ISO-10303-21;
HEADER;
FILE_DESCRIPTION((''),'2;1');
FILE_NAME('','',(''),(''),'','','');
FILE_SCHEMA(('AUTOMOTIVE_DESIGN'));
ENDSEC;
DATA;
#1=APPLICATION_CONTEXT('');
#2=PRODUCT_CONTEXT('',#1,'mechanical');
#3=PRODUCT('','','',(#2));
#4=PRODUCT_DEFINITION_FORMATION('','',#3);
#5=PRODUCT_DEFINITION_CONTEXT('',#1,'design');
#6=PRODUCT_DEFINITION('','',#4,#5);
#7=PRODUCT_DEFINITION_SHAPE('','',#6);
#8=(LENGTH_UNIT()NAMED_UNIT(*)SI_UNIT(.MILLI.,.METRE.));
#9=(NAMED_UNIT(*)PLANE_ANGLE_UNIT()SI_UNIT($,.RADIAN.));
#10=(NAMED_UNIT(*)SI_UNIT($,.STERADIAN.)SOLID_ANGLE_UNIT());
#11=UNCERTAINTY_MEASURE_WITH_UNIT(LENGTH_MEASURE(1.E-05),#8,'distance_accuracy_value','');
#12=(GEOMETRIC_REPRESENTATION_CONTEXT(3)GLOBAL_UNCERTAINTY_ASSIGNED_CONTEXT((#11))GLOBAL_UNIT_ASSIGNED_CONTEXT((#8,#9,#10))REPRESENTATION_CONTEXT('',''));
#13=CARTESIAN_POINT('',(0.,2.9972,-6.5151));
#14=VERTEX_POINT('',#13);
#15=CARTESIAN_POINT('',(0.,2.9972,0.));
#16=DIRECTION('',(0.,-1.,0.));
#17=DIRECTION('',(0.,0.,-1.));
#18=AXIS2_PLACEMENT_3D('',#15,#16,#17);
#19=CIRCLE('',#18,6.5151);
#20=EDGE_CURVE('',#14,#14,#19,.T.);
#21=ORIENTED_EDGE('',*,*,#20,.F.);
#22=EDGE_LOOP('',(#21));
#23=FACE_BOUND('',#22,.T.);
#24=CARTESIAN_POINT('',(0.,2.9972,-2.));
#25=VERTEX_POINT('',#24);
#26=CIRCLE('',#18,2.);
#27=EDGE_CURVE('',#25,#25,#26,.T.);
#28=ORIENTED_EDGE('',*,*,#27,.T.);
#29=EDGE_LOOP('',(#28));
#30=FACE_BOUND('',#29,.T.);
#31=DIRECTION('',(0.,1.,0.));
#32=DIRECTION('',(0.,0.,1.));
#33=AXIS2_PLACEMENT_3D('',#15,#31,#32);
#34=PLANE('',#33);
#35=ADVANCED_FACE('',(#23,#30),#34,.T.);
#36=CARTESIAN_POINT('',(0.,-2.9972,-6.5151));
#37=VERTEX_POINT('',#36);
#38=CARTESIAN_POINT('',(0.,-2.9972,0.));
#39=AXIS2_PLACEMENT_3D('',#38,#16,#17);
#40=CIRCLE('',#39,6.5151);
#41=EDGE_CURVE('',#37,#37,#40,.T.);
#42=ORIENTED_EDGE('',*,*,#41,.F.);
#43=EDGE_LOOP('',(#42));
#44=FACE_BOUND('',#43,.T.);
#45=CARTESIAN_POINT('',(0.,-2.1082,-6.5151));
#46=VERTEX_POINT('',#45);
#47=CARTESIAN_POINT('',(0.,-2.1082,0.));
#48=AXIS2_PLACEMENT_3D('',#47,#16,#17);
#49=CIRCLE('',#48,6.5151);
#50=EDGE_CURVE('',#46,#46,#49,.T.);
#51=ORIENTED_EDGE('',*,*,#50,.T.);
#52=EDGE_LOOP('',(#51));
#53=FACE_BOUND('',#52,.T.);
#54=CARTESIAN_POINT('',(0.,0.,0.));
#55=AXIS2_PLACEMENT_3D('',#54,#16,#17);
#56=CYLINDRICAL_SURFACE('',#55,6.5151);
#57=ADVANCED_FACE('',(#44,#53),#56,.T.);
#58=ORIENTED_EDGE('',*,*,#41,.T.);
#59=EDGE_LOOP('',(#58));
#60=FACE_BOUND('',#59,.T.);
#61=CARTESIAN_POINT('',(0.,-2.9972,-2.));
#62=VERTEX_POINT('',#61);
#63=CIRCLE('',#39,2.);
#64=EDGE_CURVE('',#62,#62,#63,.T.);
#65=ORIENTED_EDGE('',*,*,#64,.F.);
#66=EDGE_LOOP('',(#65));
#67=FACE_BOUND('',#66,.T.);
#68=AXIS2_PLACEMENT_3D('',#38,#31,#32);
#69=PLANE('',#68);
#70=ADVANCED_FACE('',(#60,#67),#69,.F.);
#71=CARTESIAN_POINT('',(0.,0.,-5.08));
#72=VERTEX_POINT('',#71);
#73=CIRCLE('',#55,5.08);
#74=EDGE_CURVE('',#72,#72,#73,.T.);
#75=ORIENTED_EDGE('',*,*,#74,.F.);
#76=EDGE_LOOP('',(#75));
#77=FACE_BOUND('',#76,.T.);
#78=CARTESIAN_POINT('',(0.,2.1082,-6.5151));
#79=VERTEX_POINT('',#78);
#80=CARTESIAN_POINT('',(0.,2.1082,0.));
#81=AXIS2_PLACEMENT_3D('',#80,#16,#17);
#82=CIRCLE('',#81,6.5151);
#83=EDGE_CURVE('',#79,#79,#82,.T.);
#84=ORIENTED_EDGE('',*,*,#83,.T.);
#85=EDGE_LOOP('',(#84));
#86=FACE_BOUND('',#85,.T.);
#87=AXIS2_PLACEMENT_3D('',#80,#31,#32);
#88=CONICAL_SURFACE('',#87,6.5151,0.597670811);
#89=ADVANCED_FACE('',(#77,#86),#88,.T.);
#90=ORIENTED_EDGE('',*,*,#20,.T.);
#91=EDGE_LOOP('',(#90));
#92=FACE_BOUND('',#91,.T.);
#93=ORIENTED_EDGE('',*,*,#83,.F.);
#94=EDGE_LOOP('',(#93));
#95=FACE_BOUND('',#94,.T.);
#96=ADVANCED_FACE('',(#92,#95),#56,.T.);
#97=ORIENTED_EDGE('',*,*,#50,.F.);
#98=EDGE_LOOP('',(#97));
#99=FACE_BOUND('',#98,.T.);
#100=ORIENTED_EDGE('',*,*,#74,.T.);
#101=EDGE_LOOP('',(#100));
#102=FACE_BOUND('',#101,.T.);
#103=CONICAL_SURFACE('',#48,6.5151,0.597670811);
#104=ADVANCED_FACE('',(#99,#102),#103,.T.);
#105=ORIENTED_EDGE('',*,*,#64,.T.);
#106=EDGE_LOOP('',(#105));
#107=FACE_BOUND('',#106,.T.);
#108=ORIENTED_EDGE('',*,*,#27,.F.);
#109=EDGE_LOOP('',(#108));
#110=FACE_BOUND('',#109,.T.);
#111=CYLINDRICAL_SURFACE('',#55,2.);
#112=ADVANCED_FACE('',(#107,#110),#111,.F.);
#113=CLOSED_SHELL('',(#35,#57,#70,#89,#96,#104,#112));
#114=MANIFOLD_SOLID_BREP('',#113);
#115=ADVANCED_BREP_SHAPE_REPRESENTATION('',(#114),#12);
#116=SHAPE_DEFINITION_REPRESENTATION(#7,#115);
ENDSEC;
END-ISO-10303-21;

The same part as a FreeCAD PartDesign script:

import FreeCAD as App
import Part
import Sketcher
from FreeCAD import Vector
Q = App.Units.Quantity

doc = App.newDocument("Part")
body = doc.addObject("PartDesign::Body", "Body")

# Sketch on XY plane
sketch1 = body.newObject("Sketcher::SketchObject", "Sketch")
sketch1.AttachmentSupport = (doc.getObject("XY_Plane"), [""])
sketch1.MapMode = "FlatFace"
sketch1.addGeometry([
    Part.LineSegment(Vector(-6.5, -2.1, 0), Vector(-6.5, -3, 0)),  # 0
    Part.LineSegment(Vector(-6.5, -3, 0), Vector(-2, -3, 0)),  # 1
    Part.LineSegment(Vector(-2, -3, 0), Vector(-2, 3, 0)),  # 2
    Part.LineSegment(Vector(-2, 3, 0), Vector(-6.5, 3, 0)),  # 3
    Part.LineSegment(Vector(-6.5, 3, 0), Vector(-6.5, 2.1, 0)),  # 4
    Part.LineSegment(Vector(-6.5, 2.1, 0), Vector(-5.1, 0, 0)),  # 5
    Part.LineSegment(Vector(-5.1, 0, 0), Vector(-6.5, -2.1, 0)),  # 6
], False)
sketch1.addConstraint([
    Sketcher.Constraint("Coincident", 0, 2, 1, 1),
    Sketcher.Constraint("Coincident", 1, 2, 2, 1),
    Sketcher.Constraint("Coincident", 2, 2, 3, 1),
    Sketcher.Constraint("Coincident", 3, 2, 4, 1),
    Sketcher.Constraint("Coincident", 4, 2, 5, 1),
    Sketcher.Constraint("Coincident", 5, 2, 6, 1),
    Sketcher.Constraint("Coincident", 6, 2, 0, 1),
    Sketcher.Constraint("Vertical", 0),
    Sketcher.Constraint("Horizontal", 1),
    Sketcher.Constraint("Vertical", 2),
    Sketcher.Constraint("Horizontal", 3),
    Sketcher.Constraint("Vertical", 4),
    Sketcher.Constraint("Symmetric", 0, 2, 3, 2, -1),
    Sketcher.Constraint("PointOnObject", 5, 2, -1),
    Sketcher.Constraint("Equal", 0, 4),
    Sketcher.Constraint("DistanceX", 5, 2, -1, 1, Q("0.2 in")),
    Sketcher.Constraint("DistanceY", 0, 2, 0, 1, Q("0.035 in")),
    Sketcher.Constraint("DistanceY", 2, 1, 2, 2, Q("0.236 in")),
    Sketcher.Constraint("DistanceX", 1, 1, 1, 2, Q("4.5151 mm")),
    Sketcher.Constraint("DistanceX", 0, 2, -1, 1, Q("0.2565 in")),
])
revolution = body.newObject("PartDesign::Revolution", "Revolution")
revolution.Profile = sketch1
revolution.ReferenceAxis = (sketch1, ["V_Axis"])
revolution.Angle = 360

doc.recompute()
